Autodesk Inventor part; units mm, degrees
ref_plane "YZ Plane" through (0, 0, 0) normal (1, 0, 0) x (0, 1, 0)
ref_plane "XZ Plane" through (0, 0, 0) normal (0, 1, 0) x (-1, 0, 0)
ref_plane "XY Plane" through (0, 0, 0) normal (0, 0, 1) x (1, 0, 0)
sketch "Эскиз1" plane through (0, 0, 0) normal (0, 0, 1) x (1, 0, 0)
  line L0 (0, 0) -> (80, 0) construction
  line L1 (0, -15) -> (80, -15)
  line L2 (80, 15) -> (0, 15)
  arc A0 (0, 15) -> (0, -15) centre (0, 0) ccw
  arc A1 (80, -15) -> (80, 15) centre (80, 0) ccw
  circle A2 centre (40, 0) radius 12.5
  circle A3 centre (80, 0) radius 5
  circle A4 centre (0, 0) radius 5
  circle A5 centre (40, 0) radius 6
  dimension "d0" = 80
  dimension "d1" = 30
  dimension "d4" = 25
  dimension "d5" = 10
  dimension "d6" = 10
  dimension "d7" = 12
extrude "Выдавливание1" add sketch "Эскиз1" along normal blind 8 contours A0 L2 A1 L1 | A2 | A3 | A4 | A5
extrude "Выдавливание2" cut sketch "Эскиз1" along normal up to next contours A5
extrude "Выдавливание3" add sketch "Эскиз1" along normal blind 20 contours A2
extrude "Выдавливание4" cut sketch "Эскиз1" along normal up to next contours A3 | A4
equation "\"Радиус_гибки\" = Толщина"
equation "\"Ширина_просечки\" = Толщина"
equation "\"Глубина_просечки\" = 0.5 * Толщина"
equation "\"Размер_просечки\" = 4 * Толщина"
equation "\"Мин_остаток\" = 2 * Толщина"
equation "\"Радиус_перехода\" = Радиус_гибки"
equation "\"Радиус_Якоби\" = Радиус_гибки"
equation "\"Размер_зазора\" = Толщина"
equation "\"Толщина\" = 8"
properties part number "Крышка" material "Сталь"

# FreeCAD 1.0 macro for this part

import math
import FreeCAD as App
import Part
import Sketcher
from FreeCAD import Vector

doc = App.newDocument("Part")
body = doc.addObject("PartDesign::Body", "Body")

sketch1 = body.newObject("Sketcher::SketchObject", "Sketch")
sketch1.AttachmentSupport = (doc.getObject("XY_Plane"), [""])
sketch1.MapMode = "FlatFace"
sketch1.addGeometry(Part.ArcOfCircle(Part.Circle(Vector(0, 0, 0), Vector(0, 0, 1), 15), math.radians(90), math.radians(270)), False)
sketch1.addGeometry(Part.LineSegment(Vector(0, -15, 0), Vector(80, -15, 0)), False)
sketch1.addGeometry(Part.ArcOfCircle(Part.Circle(Vector(80, 0, 0), Vector(0, 0, 1), 15), math.radians(-90), math.radians(90)), False)
sketch1.addGeometry(Part.LineSegment(Vector(80, 15, 0), Vector(0, 15, 0)), False)
sketch1.addConstraint(Sketcher.Constraint("Tangent", 0, 2, 1, 1))
sketch1.addConstraint(Sketcher.Constraint("Tangent", 1, 2, 2, 1))
sketch1.addConstraint(Sketcher.Constraint("Tangent", 2, 2, 3, 1))
sketch1.addConstraint(Sketcher.Constraint("Tangent", 3, 2, 0, 1))
sketch1.addConstraint(Sketcher.Constraint("Horizontal", 1))
sketch1.addConstraint(Sketcher.Constraint("Horizontal", 3))
sketch1.addConstraint(Sketcher.Constraint("Coincident", 0, 3, -1, 1))
sketch1.addConstraint(Sketcher.Constraint("Radius", 0, 15.0))
sketch1.addConstraint(Sketcher.Constraint("DistanceX", 1, 1, 1, 2, 80.0))
pad1 = body.newObject("PartDesign::Pad", "Pad")
pad1.Profile = sketch1
pad1.Length = 8

sketch2 = body.newObject("Sketcher::SketchObject", "Sketch001")
sketch2.AttachmentSupport = (doc.getObject("XY_Plane"), [""])
sketch2.MapMode = "FlatFace"
sketch2.addGeometry(Part.Circle(Vector(40, 0, 0), Vector(0, 0, 1), 6), False)
sketch2.addConstraint(Sketcher.Constraint("PointOnObject", 0, 3, -1))
sketch2.addConstraint(Sketcher.Constraint("Diameter", 0, 12.0))
sketch2.addConstraint(Sketcher.Constraint("DistanceX", -1, 1, 0, 3, 40.0))
pocket1 = body.newObject("PartDesign::Pocket", "Pocket")
pocket1.Profile = sketch2
pocket1.Type = "UpToFirst"
pocket1.Reversed = True

sketch3 = body.newObject("Sketcher::SketchObject", "Sketch002")
sketch3.AttachmentSupport = (doc.getObject("XY_Plane"), [""])
sketch3.MapMode = "FlatFace"
sketch3.addGeometry(Part.Circle(Vector(40, 0, 0), Vector(0, 0, 1), 12), False)
sketch3.addGeometry(Part.Circle(Vector(40, 0, 0), Vector(0, 0, 1), 6), False)
sketch3.addConstraint(Sketcher.Constraint("Coincident", 1, 3, 0, 3))
sketch3.addConstraint(Sketcher.Constraint("PointOnObject", 0, 3, -1))
sketch3.addConstraint(Sketcher.Constraint("Diameter", 0, 25.0))
sketch3.addConstraint(Sketcher.Constraint("Diameter", 1, 12.0))
sketch3.addConstraint(Sketcher.Constraint("DistanceX", -1, 1, 0, 3, 40.0))
pad2 = body.newObject("PartDesign::Pad", "Pad001")
pad2.Profile = sketch3
pad2.Length = 20

sketch4 = body.newObject("Sketcher::SketchObject", "Sketch003")
sketch4.AttachmentSupport = (doc.getObject("XY_Plane"), [""])
sketch4.MapMode = "FlatFace"
sketch4.addGeometry(Part.Circle(Vector(80, 0, 0), Vector(0, 0, 1), 5), False)
sketch4.addGeometry(Part.Circle(Vector(0, 0, 0), Vector(0, 0, 1), 5), False)
sketch4.addConstraint(Sketcher.Constraint("Coincident", 1, 3, -1, 1))
sketch4.addConstraint(Sketcher.Constraint("Equal", 0, 1))
sketch4.addConstraint(Sketcher.Constraint("PointOnObject", 0, 3, -1))
sketch4.addConstraint(Sketcher.Constraint("Diameter", 0, 10.0))
sketch4.addConstraint(Sketcher.Constraint("DistanceX", -1, 1, 0, 3, 80.0))
pocket2 = body.newObject("PartDesign::Pocket", "Pocket001")
pocket2.Profile = sketch4
pocket2.Length = 8
pocket2.Reversed = True

doc.recompute()
